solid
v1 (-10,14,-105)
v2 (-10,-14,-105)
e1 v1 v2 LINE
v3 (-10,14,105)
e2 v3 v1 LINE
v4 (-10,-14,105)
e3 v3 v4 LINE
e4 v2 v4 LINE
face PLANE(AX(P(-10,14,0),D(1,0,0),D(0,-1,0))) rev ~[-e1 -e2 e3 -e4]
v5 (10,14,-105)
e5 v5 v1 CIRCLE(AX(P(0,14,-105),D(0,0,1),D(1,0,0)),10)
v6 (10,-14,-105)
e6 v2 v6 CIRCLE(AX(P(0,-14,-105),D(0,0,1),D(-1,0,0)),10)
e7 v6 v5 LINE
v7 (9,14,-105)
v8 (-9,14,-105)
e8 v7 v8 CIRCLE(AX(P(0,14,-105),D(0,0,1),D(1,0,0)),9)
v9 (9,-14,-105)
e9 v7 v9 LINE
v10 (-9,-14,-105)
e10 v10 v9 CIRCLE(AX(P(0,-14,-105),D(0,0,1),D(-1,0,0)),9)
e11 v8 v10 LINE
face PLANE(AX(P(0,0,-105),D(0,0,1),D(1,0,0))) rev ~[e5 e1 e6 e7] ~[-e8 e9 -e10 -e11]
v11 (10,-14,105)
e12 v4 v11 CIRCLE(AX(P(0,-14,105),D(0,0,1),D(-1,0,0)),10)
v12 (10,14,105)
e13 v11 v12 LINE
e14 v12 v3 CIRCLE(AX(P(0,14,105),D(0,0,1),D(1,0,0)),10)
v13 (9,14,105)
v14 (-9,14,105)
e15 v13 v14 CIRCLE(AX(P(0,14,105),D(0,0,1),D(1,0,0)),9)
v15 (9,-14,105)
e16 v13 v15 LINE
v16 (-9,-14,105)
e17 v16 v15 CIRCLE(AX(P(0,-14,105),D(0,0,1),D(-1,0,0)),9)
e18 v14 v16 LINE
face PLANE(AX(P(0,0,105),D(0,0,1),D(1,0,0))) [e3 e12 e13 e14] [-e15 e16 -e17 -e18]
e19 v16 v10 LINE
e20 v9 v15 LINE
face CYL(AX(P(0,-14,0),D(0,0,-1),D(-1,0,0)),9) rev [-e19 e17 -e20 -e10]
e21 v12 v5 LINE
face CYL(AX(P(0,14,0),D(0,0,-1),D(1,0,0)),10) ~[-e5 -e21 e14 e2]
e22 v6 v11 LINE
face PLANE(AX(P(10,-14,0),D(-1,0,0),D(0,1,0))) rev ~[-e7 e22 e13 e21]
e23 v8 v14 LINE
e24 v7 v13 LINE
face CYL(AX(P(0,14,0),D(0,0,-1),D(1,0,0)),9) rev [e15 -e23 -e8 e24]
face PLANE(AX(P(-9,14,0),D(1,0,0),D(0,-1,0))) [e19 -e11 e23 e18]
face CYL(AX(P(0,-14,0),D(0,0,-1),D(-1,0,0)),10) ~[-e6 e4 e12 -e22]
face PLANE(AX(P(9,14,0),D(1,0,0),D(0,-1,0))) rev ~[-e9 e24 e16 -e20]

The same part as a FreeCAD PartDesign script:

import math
import FreeCAD as App
import Part
import Sketcher

doc = App.newDocument("Part")
body = doc.addObject("PartDesign::Body", "Body")

# Sketch on XY plane
sketch1 = body.newObject("Sketcher::SketchObject", "Sketch")
sketch1.AttachmentSupport = (doc.getObject("XY_Plane"), [""])
sketch1.MapMode = "FlatFace"
sketch1.addGeometry(Part.LineSegment(App.Vector(-10, 14, 0), App.Vector(-10, -14, 0)), False)
sketch1.addGeometry(Part.ArcOfCircle(Part.Circle(App.Vector(0, -14, 0), App.Vector(0, 0, 1), 10), math.radians(180), math.radians(360)), False)
sketch1.addGeometry(Part.LineSegment(App.Vector(10, -14, 0), App.Vector(10, 14, 0)), False)
sketch1.addGeometry(Part.ArcOfCircle(Part.Circle(App.Vector(0, 14, 0), App.Vector(0, 0, 1), 10), math.radians(0), math.radians(180)), False)
sketch1.addGeometry(Part.LineSegment(App.Vector(-9, -14, 0), App.Vector(-9, 14, 0)), False)
sketch1.addGeometry(Part.ArcOfCircle(Part.Circle(App.Vector(0, 14, 0), App.Vector(0, 0, 1), 9), math.radians(0), math.radians(180)), False)
sketch1.addGeometry(Part.LineSegment(App.Vector(9, 14, 0), App.Vector(9, -14, 0)), False)
sketch1.addGeometry(Part.ArcOfCircle(Part.Circle(App.Vector(0, -14, 0), App.Vector(0, 0, 1), 9), math.radians(180), math.radians(360)), False)
sketch1.addConstraint(Sketcher.Constraint("Tangent", 0, 2, 1, 1))
sketch1.addConstraint(Sketcher.Constraint("Tangent", 1, 2, 2, 1))
sketch1.addConstraint(Sketcher.Constraint("Tangent", 2, 2, 3, 1))
sketch1.addConstraint(Sketcher.Constraint("Tangent", 3, 2, 0, 1))
sketch1.addConstraint(Sketcher.Constraint("Tangent", 4, 2, 5, 2))
sketch1.addConstraint(Sketcher.Constraint("Tangent", 5, 1, 6, 1))
sketch1.addConstraint(Sketcher.Constraint("Tangent", 6, 2, 7, 2))
sketch1.addConstraint(Sketcher.Constraint("Tangent", 7, 1, 4, 1))
sketch1.addConstraint(Sketcher.Constraint("Vertical", 0))
sketch1.addConstraint(Sketcher.Constraint("Vertical", 2))
sketch1.addConstraint(Sketcher.Constraint("Vertical", 4))
sketch1.addConstraint(Sketcher.Constraint("Vertical", 6))
sketch1.addConstraint(Sketcher.Constraint("Coincident", 5, 3, 3, 3))
sketch1.addConstraint(Sketcher.Constraint("Symmetric", 1, 3, 3, 3, -1, 1))
sketch1.addConstraint(Sketcher.Constraint("Horizontal", 7, 3, 0, 2))
sketch1.addConstraint(Sketcher.Constraint("Radius", 1, 10.0))
sketch1.addConstraint(Sketcher.Constraint("Radius", 5, 9.0))
sketch1.addConstraint(Sketcher.Constraint("DistanceY", 0, 2, 0, 1, 28.0))
pad1 = body.newObject("PartDesign::Pad", "Pad")
pad1.Profile = sketch1
pad1.Length = 210
pad1.Midplane = True

doc.recompute()
